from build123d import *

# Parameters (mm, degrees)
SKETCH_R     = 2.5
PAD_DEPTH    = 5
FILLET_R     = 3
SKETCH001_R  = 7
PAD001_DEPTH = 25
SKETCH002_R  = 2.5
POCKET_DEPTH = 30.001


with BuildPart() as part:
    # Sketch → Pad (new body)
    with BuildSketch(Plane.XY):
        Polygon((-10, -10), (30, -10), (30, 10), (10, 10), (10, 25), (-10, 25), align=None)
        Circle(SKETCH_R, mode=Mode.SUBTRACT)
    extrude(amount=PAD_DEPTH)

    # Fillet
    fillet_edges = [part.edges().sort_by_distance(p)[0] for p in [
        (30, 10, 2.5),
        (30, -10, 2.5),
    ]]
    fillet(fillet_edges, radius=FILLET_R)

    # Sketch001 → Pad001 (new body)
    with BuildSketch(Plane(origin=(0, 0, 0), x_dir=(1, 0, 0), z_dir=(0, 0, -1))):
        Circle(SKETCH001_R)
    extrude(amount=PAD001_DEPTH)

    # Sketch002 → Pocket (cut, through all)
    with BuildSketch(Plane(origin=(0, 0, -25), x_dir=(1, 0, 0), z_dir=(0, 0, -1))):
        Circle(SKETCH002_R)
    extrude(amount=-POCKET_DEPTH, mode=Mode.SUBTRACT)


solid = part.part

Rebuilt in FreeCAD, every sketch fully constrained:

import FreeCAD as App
import Part
import Sketcher


def edges_at(feature, points):
    """Names of the edges that pass closest to the given points."""
    edges = feature.Shape.Edges
    near = lambda p: min(range(len(edges)), key=lambda i: edges[i].distToShape(Part.Vertex(*p))[0])
    return sorted({f"Edge{near(p) + 1}" for p in points})


def add_polygon(sketch, points):
    """Adds a closed chain of lines whose ends are joined by coincident constraints."""
    first, n = sketch.GeometryCount, len(points)
    for a, b in zip(points, points[1:] + points[:1]):
        sketch.addGeometry(Part.LineSegment(App.Vector(*a, 0), App.Vector(*b, 0)), False)
    for i in range(n):
        sketch.addConstraint(Sketcher.Constraint("Coincident", first + i, 2, first + (i + 1) % n, 1))

doc = App.newDocument("Part")
body = doc.addObject("PartDesign::Body", "Body")

# Sketch on XY plane
sketch1 = body.newObject("Sketcher::SketchObject", "Sketch")
sketch1.AttachmentSupport = (doc.getObject("XY_Plane"), [""])
sketch1.MapMode = "FlatFace"
add_polygon(sketch1, [(-10, -10), (30, -10), (30, 10), (10, 10), (10, 25), (-10, 25)])  # lines 0-5
sketch1.addGeometry(Part.Circle(App.Vector(0, 0, 0), App.Vector(0, 0, 1), 2.5), False)  # 6
sketch1.addConstraint(Sketcher.Constraint("Horizontal", 0))
sketch1.addConstraint(Sketcher.Constraint("Vertical", 1))
sketch1.addConstraint(Sketcher.Constraint("Horizontal", 2))
sketch1.addConstraint(Sketcher.Constraint("Vertical", 3))
sketch1.addConstraint(Sketcher.Constraint("Horizontal", 4))
sketch1.addConstraint(Sketcher.Constraint("Vertical", 5))
sketch1.addConstraint(Sketcher.Constraint("Coincident", 6, 3, -1, 1))
sketch1.addConstraint(Sketcher.Constraint("Symmetric", 2, 2, 5, 2, -1, 1))
sketch1.addConstraint(Sketcher.Constraint("Equal", 2, 4))
sketch1.addConstraint(Sketcher.Constraint("Equal", 4, 1))
sketch1.addConstraint(Sketcher.Constraint("Diameter", 6, 5.0))
sketch1.addConstraint(Sketcher.Constraint("DistanceX", 0, 1, 0, 2, 40.0))
sketch1.addConstraint(Sketcher.Constraint("DistanceY", 3, 1, 3, 2, 15.0))
pad1 = body.newObject("PartDesign::Pad", "Pad")
pad1.Profile = sketch1
pad1.Length = 5
doc.recompute()

fillet = body.newObject("PartDesign::Fillet", "Fillet")
fillet.Base = (pad1, edges_at(pad1, [(30, 10, 2.5), (30, -10, 2.5)]))
fillet.Radius = 3

# Sketch on XY plane
sketch2 = body.newObject("Sketcher::SketchObject", "Sketch001")
sketch2.AttachmentSupport = (doc.getObject("XY_Plane"), [""])
sketch2.MapMode = "FlatFace"
sketch2.addGeometry(Part.Circle(App.Vector(0, 0, 0), App.Vector(0, 0, 1), 7), False)
sketch2.addConstraint(Sketcher.Constraint("Coincident", 0, 3, -1, 1))
sketch2.addConstraint(Sketcher.Constraint("Diameter", 0, 14.0))
pad2 = body.newObject("PartDesign::Pad", "Pad001")
pad2.Profile = sketch2
pad2.Length = 25
pad2.Reversed = True

# Sketch on XY plane
sketch3 = body.newObject("Sketcher::SketchObject", "Sketch002")
sketch3.AttachmentSupport = (doc.getObject("XY_Plane"), [""])
sketch3.MapMode = "FlatFace"
sketch3.AttachmentOffset = App.Placement(App.Vector(0, 0, -25), App.Rotation())
sketch3.addGeometry(Part.Circle(App.Vector(0, 0, 0), App.Vector(0, 0, 1), 2.5), False)
sketch3.addConstraint(Sketcher.Constraint("Coincident", 0, 3, -1, 1))
sketch3.addConstraint(Sketcher.Constraint("Diameter", 0, 5.0))
pocket1 = body.newObject("PartDesign::Pocket", "Pocket")
pocket1.Profile = sketch3
pocket1.Type = "ThroughAll"
pocket1.Reversed = True

doc.recompute()
